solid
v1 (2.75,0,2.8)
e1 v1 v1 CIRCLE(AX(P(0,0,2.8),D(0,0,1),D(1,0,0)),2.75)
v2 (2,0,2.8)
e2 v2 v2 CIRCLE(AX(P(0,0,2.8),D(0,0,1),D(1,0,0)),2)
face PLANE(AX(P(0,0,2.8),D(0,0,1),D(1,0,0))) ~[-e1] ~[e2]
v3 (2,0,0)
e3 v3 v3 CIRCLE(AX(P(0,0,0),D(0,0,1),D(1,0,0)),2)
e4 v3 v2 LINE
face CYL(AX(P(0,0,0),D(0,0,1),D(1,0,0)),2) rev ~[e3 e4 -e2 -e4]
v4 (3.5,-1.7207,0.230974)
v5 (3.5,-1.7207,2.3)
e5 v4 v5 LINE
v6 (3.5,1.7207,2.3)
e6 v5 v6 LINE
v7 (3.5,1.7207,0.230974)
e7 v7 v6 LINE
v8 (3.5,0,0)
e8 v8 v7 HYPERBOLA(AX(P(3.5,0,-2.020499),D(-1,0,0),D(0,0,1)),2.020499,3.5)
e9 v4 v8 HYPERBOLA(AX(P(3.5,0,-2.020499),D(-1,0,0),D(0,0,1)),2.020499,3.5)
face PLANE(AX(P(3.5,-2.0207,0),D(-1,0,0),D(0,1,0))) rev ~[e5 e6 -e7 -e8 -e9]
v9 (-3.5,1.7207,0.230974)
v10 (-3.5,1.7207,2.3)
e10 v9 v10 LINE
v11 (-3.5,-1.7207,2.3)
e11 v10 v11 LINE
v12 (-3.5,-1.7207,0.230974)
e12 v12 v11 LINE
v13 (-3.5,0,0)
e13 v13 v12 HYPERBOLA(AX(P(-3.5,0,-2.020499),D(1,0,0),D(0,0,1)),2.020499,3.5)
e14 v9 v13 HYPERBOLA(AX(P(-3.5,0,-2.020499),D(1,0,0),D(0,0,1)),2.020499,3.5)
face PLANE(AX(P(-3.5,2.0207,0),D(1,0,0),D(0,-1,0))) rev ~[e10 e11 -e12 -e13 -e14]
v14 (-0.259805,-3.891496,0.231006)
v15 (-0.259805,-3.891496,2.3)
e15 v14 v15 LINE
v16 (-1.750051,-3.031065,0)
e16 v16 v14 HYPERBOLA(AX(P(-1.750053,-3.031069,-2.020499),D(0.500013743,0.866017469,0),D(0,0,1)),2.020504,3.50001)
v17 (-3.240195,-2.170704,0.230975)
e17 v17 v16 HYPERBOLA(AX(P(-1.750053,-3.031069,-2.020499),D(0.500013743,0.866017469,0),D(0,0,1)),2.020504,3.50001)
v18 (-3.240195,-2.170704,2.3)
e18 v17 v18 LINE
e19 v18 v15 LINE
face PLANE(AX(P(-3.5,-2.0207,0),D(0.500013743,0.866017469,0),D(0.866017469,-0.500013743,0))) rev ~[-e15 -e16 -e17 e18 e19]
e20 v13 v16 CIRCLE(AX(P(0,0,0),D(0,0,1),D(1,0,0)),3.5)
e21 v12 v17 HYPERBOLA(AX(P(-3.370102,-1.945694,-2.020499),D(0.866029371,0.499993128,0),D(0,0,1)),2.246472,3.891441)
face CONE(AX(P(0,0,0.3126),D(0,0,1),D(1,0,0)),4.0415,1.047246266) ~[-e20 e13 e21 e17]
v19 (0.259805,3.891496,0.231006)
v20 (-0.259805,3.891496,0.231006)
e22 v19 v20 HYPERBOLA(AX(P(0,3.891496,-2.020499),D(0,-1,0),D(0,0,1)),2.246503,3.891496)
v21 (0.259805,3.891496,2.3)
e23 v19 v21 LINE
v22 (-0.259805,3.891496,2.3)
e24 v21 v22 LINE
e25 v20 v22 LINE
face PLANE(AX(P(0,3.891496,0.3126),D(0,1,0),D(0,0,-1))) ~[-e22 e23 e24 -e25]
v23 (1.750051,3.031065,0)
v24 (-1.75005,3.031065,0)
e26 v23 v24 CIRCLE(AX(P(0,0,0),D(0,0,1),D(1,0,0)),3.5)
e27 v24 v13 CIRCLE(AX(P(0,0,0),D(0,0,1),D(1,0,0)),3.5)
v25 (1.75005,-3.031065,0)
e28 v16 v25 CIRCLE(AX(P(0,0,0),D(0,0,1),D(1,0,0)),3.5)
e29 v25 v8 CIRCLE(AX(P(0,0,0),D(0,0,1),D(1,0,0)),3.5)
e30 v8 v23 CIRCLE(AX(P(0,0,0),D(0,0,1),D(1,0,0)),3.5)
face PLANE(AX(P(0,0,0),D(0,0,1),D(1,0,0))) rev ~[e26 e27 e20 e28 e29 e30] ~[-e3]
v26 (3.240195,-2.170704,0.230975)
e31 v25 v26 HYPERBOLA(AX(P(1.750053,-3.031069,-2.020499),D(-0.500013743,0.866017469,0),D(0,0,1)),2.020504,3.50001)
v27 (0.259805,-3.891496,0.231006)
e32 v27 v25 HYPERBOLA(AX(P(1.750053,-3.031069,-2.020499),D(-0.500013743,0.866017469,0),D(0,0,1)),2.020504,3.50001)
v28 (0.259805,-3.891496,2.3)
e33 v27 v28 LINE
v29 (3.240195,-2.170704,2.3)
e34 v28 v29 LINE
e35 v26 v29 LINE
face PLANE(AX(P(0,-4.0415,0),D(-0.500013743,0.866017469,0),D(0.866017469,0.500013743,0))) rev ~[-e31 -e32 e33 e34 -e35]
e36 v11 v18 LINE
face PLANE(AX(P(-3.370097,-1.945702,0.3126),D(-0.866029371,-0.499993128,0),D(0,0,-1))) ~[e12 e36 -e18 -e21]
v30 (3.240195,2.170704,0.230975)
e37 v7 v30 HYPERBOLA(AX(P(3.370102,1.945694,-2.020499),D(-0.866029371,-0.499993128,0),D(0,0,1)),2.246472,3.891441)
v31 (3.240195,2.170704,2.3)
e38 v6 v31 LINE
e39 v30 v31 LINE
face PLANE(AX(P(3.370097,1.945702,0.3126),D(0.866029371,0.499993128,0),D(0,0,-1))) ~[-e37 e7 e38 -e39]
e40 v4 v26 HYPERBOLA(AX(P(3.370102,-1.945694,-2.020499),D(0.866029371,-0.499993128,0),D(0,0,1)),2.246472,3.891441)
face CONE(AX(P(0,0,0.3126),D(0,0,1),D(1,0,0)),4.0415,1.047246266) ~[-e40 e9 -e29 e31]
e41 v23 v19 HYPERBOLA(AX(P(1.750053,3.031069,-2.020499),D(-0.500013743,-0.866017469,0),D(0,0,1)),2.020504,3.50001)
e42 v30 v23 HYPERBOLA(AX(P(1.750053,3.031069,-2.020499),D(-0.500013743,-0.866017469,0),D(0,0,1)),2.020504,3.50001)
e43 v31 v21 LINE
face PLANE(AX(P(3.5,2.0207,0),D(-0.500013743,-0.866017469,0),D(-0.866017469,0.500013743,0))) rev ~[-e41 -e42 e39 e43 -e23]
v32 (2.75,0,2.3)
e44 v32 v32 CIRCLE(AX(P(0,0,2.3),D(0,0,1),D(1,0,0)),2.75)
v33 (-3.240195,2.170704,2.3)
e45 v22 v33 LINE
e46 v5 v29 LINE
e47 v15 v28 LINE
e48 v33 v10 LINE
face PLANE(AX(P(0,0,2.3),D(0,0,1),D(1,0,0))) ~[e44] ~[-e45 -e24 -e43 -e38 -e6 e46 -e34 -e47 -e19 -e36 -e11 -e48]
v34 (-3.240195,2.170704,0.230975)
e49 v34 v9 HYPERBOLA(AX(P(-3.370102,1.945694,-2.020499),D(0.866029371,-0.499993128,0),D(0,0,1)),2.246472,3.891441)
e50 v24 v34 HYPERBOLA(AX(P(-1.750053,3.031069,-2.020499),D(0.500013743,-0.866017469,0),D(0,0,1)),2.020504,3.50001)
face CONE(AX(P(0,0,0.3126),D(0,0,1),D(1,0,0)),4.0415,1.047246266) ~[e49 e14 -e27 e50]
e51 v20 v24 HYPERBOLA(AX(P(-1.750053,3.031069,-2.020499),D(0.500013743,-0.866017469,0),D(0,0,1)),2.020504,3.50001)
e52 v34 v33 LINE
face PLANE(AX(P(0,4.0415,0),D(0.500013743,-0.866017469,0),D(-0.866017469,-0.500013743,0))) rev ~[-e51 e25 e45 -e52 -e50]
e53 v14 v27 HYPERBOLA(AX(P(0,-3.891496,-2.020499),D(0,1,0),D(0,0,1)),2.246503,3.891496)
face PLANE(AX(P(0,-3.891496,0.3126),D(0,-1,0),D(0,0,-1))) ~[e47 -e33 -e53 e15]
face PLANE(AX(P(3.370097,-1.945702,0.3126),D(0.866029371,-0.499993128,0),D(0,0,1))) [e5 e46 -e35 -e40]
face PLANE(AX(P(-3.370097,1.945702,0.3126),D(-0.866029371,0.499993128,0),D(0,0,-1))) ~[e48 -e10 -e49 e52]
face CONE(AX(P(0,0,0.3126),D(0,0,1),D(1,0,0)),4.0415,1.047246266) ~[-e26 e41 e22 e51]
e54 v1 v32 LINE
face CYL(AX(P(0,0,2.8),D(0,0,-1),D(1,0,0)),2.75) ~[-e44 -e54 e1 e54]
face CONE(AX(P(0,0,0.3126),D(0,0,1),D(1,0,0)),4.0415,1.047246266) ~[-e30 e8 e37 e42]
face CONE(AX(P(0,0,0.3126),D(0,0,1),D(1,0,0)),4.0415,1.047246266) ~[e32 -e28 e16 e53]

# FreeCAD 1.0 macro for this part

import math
import FreeCAD as App
import Part
import Sketcher
Q = App.Units.Quantity


def edges_at(feature, points):
    """Names of the edges that pass closest to the given points."""
    edges = feature.Shape.Edges
    near = lambda p: min(range(len(edges)), key=lambda i: edges[i].distToShape(Part.Vertex(*p))[0])
    return sorted({f"Edge{near(p) + 1}" for p in points})


def add_polygon(sketch, points):
    """Adds a closed chain of lines whose ends are joined by coincident constraints."""
    first, n = sketch.GeometryCount, len(points)
    for a, b in zip(points, points[1:] + points[:1]):
        sketch.addGeometry(Part.LineSegment(App.Vector(*a, 0), App.Vector(*b, 0)), False)
    for i in range(n):
        sketch.addConstraint(Sketcher.Constraint("Coincident", first + i, 2, first + (i + 1) % n, 1))

doc = App.newDocument("Part")
body = doc.addObject("PartDesign::Body", "Body")

sketch1 = body.newObject("Sketcher::SketchObject", "Sketch")
sketch1.AttachmentSupport = (doc.getObject("XZ_Plane"), [""])
sketch1.MapMode = "FlatFace"
add_polygon(sketch1, [(3.5, 0), (2, 0), (2, 2.8), (2.75, 2.8), (2.75, 2.3), (4.0415, 2.3), (4.0415, 0.3126)])
sketch1.addConstraint(Sketcher.Constraint("Horizontal", 0))
sketch1.addConstraint(Sketcher.Constraint("Vertical", 1))
sketch1.addConstraint(Sketcher.Constraint("Horizontal", 2))
sketch1.addConstraint(Sketcher.Constraint("Vertical", 3))
sketch1.addConstraint(Sketcher.Constraint("Horizontal", 4))
sketch1.addConstraint(Sketcher.Constraint("Vertical", 5))
sketch1.addConstraint(Sketcher.Constraint("PointOnObject", 0, 2, -1))
sketch1.addConstraint(Sketcher.Constraint("DistanceY", 1, 1, 1, 2, Q("2.8 mm")))
sketch1.addConstraint(Sketcher.Constraint("DistanceY", 3, 2, 3, 1, Q("0.5 mm")))
sketch1.addConstraint(Sketcher.Constraint("DistanceX", -1, 1, 6, 2, Q("3.5 mm")))
sketch1.addConstraint(Sketcher.Constraint("DistanceX", 0, 2, 0, 1, Q("1.5 mm")))
sketch1.addConstraint(Sketcher.Constraint("DistanceX", 2, 1, 2, 2, Q("0.75 mm")))
sketch1.addConstraint(Sketcher.Constraint("DistanceX", -1, 1, 4, 2, Q("4.0415 mm")))
sketch1.addConstraint(Sketcher.Constraint("DistanceY", 5, 2, 5, 1, Q("1.9874 mm")))
revolution = body.newObject("PartDesign::Revolution", "Revolution")
revolution.Profile = sketch1
revolution.ReferenceAxis = (sketch1, ["V_Axis"])
revolution.Angle = 360

sketch2 = body.newObject("Sketcher::SketchObject", "Sketch001")
sketch2.AttachmentSupport = (doc.getObject("XY_Plane"), [""])
sketch2.MapMode = "FlatFace"
sketch2.addGeometry(Part.ArcOfCircle(Part.Circle(App.Vector(0, 0, 0), App.Vector(0, 0, 1), 4.0415), math.radians(150.000319), math.radians(209.999681)), False)
sketch2.addGeometry(Part.LineSegment(App.Vector(-3.5, -2.0207, 0), App.Vector(-3.5, 2.0207, 0)), False)
sketch2.addGeometry(Part.LineSegment(App.Vector(0, 4.0415, 0), App.Vector(-3.5, 2.0207, 0)), False)
sketch2.addGeometry(Part.ArcOfCircle(Part.Circle(App.Vector(0, 0, 0), App.Vector(0, 0, 1), 4.0415), math.radians(90), math.radians(150.000319)), False)
sketch2.addGeometry(Part.ArcOfCircle(Part.Circle(App.Vector(0, 0, 0), App.Vector(0, 0, 1), 4.0415), math.radians(-150.000319), math.radians(-90)), False)
sketch2.addGeometry(Part.LineSegment(App.Vector(0, -4.0415, 0), App.Vector(-3.5, -2.0207, 0)), False)
sketch2.addGeometry(Part.LineSegment(App.Vector(3.5, 2.0207, 0), App.Vector(0, 4.0415, 0)), False)
sketch2.addGeometry(Part.ArcOfCircle(Part.Circle(App.Vector(0, 0, 0), App.Vector(0, 0, 1), 4.0415), math.radians(29.999681), math.radians(90)), False)
sketch2.addGeometry(Part.ArcOfCircle(Part.Circle(App.Vector(0, 0, 0), App.Vector(0, 0, 1), 4.0415), math.radians(-90), math.radians(-29.999681)), False)
sketch2.addGeometry(Part.LineSegment(App.Vector(0, -4.0415, 0), App.Vector(3.5, -2.0207, 0)), False)
sketch2.addGeometry(Part.LineSegment(App.Vector(3.5, -2.0207, 0), App.Vector(3.5, 2.0207, 0)), False)
sketch2.addGeometry(Part.ArcOfCircle(Part.Circle(App.Vector(0, 0, 0), App.Vector(0, 0, 1), 4.0415), math.radians(-29.999681), math.radians(29.999681)), False)
sketch2.addConstraint(Sketcher.Constraint("Coincident", 0, 1, 1, 2))
sketch2.addConstraint(Sketcher.Constraint("Coincident", 1, 1, 0, 2))
sketch2.addConstraint(Sketcher.Constraint("Coincident", 2, 1, 3, 1))
sketch2.addConstraint(Sketcher.Constraint("Coincident", 3, 2, 2, 2))
sketch2.addConstraint(Sketcher.Constraint("Coincident", 4, 1, 5, 2))
sketch2.addConstraint(Sketcher.Constraint("Coincident", 5, 1, 4, 2))
sketch2.addConstraint(Sketcher.Constraint("Coincident", 6, 1, 7, 1))
sketch2.addConstraint(Sketcher.Constraint("Coincident", 7, 2, 6, 2))
sketch2.addConstraint(Sketcher.Constraint("Coincident", 8, 1, 9, 1))
sketch2.addConstraint(Sketcher.Constraint("Coincident", 9, 2, 8, 2))
sketch2.addConstraint(Sketcher.Constraint("Coincident", 10, 1, 11, 1))
sketch2.addConstraint(Sketcher.Constraint("Coincident", 11, 2, 10, 2))
sketch2.addConstraint(Sketcher.Constraint("Vertical", 1))
sketch2.addConstraint(Sketcher.Constraint("Vertical", 10))
sketch2.addConstraint(Sketcher.Constraint("Coincident", 0, 3, -1, 1))
sketch2.addConstraint(Sketcher.Constraint("Coincident", 3, 3, -1, 1))
sketch2.addConstraint(Sketcher.Constraint("Coincident", 4, 3, -1, 1))
sketch2.addConstraint(Sketcher.Constraint("Coincident", 7, 3, -1, 1))
sketch2.addConstraint(Sketcher.Constraint("Coincident", 8, 3, -1, 1))
sketch2.addConstraint(Sketcher.Constraint("Coincident", 11, 3, -1, 1))
sketch2.addConstraint(Sketcher.Constraint("Coincident", 3, 2, 0, 1))
sketch2.addConstraint(Sketcher.Constraint("Coincident", 4, 1, 1, 1))
sketch2.addConstraint(Sketcher.Constraint("Coincident", 7, 2, 2, 1))
sketch2.addConstraint(Sketcher.Constraint("Coincident", 8, 1, 5, 1))
sketch2.addConstraint(Sketcher.Constraint("Coincident", 10, 1, 9, 2))
sketch2.addConstraint(Sketcher.Constraint("PointOnObject", 2, 1, -2))
sketch2.addConstraint(Sketcher.Constraint("PointOnObject", 5, 1, -2))
sketch2.addConstraint(Sketcher.Constraint("Parallel", 5, 6))
sketch2.addConstraint(Sketcher.Constraint("Parallel", 2, 9))
sketch2.addConstraint(Sketcher.Constraint("Angle", 2, Q("-149.999 deg")))
sketch2.addConstraint(Sketcher.Constraint("DistanceX", 0, 1, -1, 1, Q("3.5 mm")))
pocket1 = body.newObject("PartDesign::Pocket", "Pocket")
pocket1.Profile = sketch2
pocket1.Type = "ThroughAll"
pocket1.Reversed = True
doc.recompute()

chamfer = body.newObject("PartDesign::Chamfer", "Chamfer")
chamfer.Base = (pocket1, edges_at(pocket1, [
    (0, 4.042, 1.306),
    (-3.5, 2.021, 1.306),
    (3.5, 2.021, 1.306),
    (3.5, -2.021, 1.306),
    (0, -4.042, 1.306),
    (-3.5, -2.021, 1.306),
]))
chamfer.Size = 0.3

doc.recompute()
